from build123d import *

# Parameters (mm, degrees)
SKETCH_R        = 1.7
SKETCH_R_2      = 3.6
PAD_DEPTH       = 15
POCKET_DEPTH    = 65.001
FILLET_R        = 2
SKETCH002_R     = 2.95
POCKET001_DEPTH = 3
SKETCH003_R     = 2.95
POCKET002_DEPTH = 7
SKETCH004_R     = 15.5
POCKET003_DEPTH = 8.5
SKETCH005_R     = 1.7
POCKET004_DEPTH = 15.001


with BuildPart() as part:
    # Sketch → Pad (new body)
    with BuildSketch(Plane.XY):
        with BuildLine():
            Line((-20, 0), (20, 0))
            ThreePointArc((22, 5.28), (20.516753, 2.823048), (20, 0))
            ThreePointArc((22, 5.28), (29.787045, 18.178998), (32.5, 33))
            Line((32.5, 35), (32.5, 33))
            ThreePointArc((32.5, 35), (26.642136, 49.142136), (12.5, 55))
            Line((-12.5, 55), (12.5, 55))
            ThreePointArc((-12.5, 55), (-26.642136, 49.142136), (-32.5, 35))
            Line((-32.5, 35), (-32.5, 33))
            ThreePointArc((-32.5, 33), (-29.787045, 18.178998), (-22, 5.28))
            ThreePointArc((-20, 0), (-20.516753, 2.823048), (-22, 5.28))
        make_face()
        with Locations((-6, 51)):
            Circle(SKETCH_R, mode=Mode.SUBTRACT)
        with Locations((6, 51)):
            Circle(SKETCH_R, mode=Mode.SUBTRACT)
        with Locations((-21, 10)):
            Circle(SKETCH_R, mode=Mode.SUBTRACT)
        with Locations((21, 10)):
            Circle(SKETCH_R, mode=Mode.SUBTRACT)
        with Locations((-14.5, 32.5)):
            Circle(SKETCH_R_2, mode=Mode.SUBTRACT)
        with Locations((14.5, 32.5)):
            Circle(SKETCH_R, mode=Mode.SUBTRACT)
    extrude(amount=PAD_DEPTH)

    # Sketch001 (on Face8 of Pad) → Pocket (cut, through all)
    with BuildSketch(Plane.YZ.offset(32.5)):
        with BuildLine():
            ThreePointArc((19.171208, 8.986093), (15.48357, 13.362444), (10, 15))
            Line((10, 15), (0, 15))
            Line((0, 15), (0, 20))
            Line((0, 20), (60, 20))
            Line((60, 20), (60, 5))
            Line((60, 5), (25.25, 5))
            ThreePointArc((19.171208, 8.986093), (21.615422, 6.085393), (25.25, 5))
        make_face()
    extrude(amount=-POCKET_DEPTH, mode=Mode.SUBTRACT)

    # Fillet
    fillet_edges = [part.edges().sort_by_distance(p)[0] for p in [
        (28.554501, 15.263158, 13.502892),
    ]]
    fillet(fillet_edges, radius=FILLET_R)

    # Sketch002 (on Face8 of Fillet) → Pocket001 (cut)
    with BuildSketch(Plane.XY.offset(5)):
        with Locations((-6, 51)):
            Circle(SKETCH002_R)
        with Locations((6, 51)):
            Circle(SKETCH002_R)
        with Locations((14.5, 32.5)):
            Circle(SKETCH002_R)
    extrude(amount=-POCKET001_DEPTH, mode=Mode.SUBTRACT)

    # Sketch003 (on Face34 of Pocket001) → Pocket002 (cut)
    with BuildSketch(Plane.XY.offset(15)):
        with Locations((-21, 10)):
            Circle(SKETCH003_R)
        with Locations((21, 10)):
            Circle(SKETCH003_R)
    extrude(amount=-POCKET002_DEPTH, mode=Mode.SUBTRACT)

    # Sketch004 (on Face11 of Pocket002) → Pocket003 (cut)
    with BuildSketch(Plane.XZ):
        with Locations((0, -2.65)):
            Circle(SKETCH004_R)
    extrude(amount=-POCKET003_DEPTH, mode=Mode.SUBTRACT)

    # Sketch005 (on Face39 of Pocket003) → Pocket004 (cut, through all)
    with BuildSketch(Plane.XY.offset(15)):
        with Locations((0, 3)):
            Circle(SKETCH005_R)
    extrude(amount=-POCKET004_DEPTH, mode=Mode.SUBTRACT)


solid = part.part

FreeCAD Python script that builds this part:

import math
import FreeCAD as App
import Part
import Sketcher
from FreeCAD import Vector
Q = App.Units.Quantity


def edges_at(feature, points):
    """Names of the edges that pass closest to the given points."""
    edges = feature.Shape.Edges
    near = lambda p: min(range(len(edges)), key=lambda i: edges[i].distToShape(Part.Vertex(*p))[0])
    return sorted({f"Edge{near(p) + 1}" for p in points})

doc = App.newDocument("Part")
body = doc.addObject("PartDesign::Body", "Body")

# Sketch on XY plane
sketch1 = doc.addObject("Sketcher::SketchObject", "Sketch")
body.addObject(sketch1)
sketch1.AttachmentSupport = (doc.XY_Plane, [""])
sketch1.MapMode = "FlatFace"
sketch1.addGeometry([
    Part.LineSegment(Vector(-20, 0, 0), Vector(20, 0, 0)),  # 0
    Part.ArcOfCircle(Part.Circle(Vector(27.969596, 0.000001, 0), Vector(0, 0, 1), 7.969596), math.radians(138.507829), math.radians(180.00001)),  # 1
    Part.ArcOfCircle(Part.Circle(Vector(-9.340403, 33.000001, 0), Vector(0, 0, 1), 41.840403), math.radians(-41.492159), math.radians(-0.000002)),  # 2
    Part.LineSegment(Vector(32.5, 33, 0), Vector(32.5, 35, 0)),  # 3
    Part.ArcOfCircle(Part.Circle(Vector(12.500001, 35.000001, 0), Vector(0, 0, 1), 19.999999), math.radians(-0.000004), math.radians(90.000004)),  # 4
    Part.LineSegment(Vector(12.5, 55, 0), Vector(-12.5, 55, 0)),  # 5
    Part.ArcOfCircle(Part.Circle(Vector(-12.500001, 35.000001, 0), Vector(0, 0, 1), 19.999999), math.radians(89.999996), math.radians(180.000004)),  # 6
    Part.LineSegment(Vector(-32.5, 35, 0), Vector(-32.5, 33, 0)),  # 7
    Part.ArcOfCircle(Part.Circle(Vector(9.340403, 33.000001, 0), Vector(0, 0, 1), 41.840403), math.radians(-179.999998), math.radians(-138.507841)),  # 8
    Part.ArcOfCircle(Part.Circle(Vector(-27.969596, 0.000001, 0), Vector(0, 0, 1), 7.969596), math.radians(-0.00001), math.radians(41.492171)),  # 9
    Part.Circle(Vector(-21, 10, 0), Vector(0, 0, 1), 1.7),  # 10
    Part.Circle(Vector(21, 10, 0), Vector(0, 0, 1), 1.7),  # 11
    Part.Circle(Vector(-14.5, 32.5, 0), Vector(0, 0, 1), 3.6),  # 12
    Part.Circle(Vector(-6, 51, 0), Vector(0, 0, 1), 1.7),  # 13
    Part.Circle(Vector(14.5, 32.5, 0), Vector(0, 0, 1), 1.7),  # 14
    Part.Circle(Vector(6, 51, 0), Vector(0, 0, 1), 1.7),  # 15
], False)
sketch1.addConstraint([
    Sketcher.Constraint("Coincident", 0, 2, 1, 2),
    Sketcher.Constraint("Tangent", 1, 1, 2, 1),
    Sketcher.Constraint("Tangent", 2, 2, 3, 1),
    Sketcher.Constraint("Tangent", 3, 2, 4, 1),
    Sketcher.Constraint("Tangent", 4, 2, 5, 1),
    Sketcher.Constraint("Tangent", 5, 2, 6, 1),
    Sketcher.Constraint("Tangent", 6, 2, 7, 1),
    Sketcher.Constraint("Tangent", 7, 2, 8, 1),
    Sketcher.Constraint("Tangent", 8, 2, 9, 2),
    Sketcher.Constraint("Coincident", 9, 1, 0, 1),
    Sketcher.Constraint("Horizontal", 0),
    Sketcher.Constraint("Vertical", 3),
    Sketcher.Constraint("Horizontal", 5),
    Sketcher.Constraint("Vertical", 7),
    Sketcher.Constraint("Equal", 4, 6),
    Sketcher.Constraint("Equal", 2, 8),
    Sketcher.Constraint("Equal", 1, 9),
    Sketcher.Constraint("Equal", 10, 11),
    Sketcher.Constraint("Equal", 11, 13),
    Sketcher.Constraint("Equal", 13, 14),
    Sketcher.Constraint("Equal", 14, 15),
    Sketcher.Constraint("Symmetric", 1, 3, 9, 3, -1, 1),
    Sketcher.Constraint("Symmetric", 2, 3, 8, 3, -2),
    Sketcher.Constraint("Symmetric", 10, 3, 11, 3, -2),
    Sketcher.Constraint("Symmetric", 12, 3, 14, 3, -2),
    Sketcher.Constraint("Symmetric", 13, 3, 15, 3, -2),
    Sketcher.Constraint("PointOnObject", 0, 2, -1),
    Sketcher.Constraint("Radius", 4, Q("19.999999 mm")),
    Sketcher.Constraint("Diameter", 10, Q("3.4 mm")),
    Sketcher.Constraint("Diameter", 12, Q("7.2 mm")),
    Sketcher.Constraint("DistanceX", 0, 1, 0, 2, Q("40 mm")),
    Sketcher.Constraint("DistanceX", 5, 2, 5, 1, Q("25 mm")),
    Sketcher.Constraint("DistanceY", 3, 1, 3, 2, Q("2 mm")),
    Sketcher.Constraint("DistanceY", -1, 1, 2, 3, Q("33.000001 mm")),
    Sketcher.Constraint("DistanceX", 10, 3, -1, 1, Q("21 mm")),
    Sketcher.Constraint("DistanceY", -1, 1, 10, 3, Q("10 mm")),
    Sketcher.Constraint("DistanceX", 13, 3, -1, 1, Q("6 mm")),
    Sketcher.Constraint("DistanceY", -1, 1, 13, 3, Q("51 mm")),
    Sketcher.Constraint("DistanceX", -1, 1, 1, 1, Q("22 mm")),
    Sketcher.Constraint("DistanceX", 12, 3, 6, 3, Q("1.999999 mm")),
    Sketcher.Constraint("DistanceY", -1, 1, 12, 3, Q("32.5 mm")),
])
pad1 = doc.addObject("PartDesign::Pad", "Pad")
body.addObject(pad1)
pad1.Profile = sketch1
pad1.Length = 15

# Sketch on YZ plane
sketch2 = doc.addObject("Sketcher::SketchObject", "Sketch001")
body.addObject(sketch2)
sketch2.AttachmentSupport = (doc.YZ_Plane, [""])
sketch2.MapMode = "FlatFace"
sketch2.AttachmentOffset = App.Placement(Vector(0, 0, 32.5), App.Rotation())
sketch2.addGeometry([
    Part.ArcOfCircle(Part.Circle(Vector(10.000002, 5.000003, 0), Vector(0, 0, 1), 9.999997), math.radians(23.491255), math.radians(90.000011)),  # 0
    Part.ArcOfCircle(Part.Circle(Vector(25.250002, 11.628128, 0), Vector(0, 0, 1), 6.628128), math.radians(-156.508717), math.radians(-90.000015)),  # 1
    Part.LineSegment(Vector(25.25, 5, 0), Vector(60, 5, 0)),  # 2
    Part.LineSegment(Vector(60, 5, 0), Vector(60, 20, 0)),  # 3
    Part.LineSegment(Vector(60, 20, 0), Vector(0, 20, 0)),  # 4
    Part.LineSegment(Vector(0, 20, 0), Vector(0, 15, 0)),  # 5
    Part.LineSegment(Vector(0, 15, 0), Vector(10, 15, 0)),  # 6
], False)
sketch2.addConstraint([
    Sketcher.Constraint("Tangent", 0, 1, 1, 1),
    Sketcher.Constraint("Tangent", 1, 2, 2, 1),
    Sketcher.Constraint("Coincident", 2, 2, 3, 1),
    Sketcher.Constraint("Coincident", 3, 2, 4, 1),
    Sketcher.Constraint("Coincident", 4, 2, 5, 1),
    Sketcher.Constraint("Coincident", 5, 2, 6, 1),
    Sketcher.Constraint("Tangent", 6, 2, 0, 2),
    Sketcher.Constraint("Horizontal", 2),
    Sketcher.Constraint("Vertical", 3),
    Sketcher.Constraint("Horizontal", 4),
    Sketcher.Constraint("Vertical", 5),
    Sketcher.Constraint("Horizontal", 6),
    Sketcher.Constraint("PointOnObject", 4, 2, -2),
    Sketcher.Constraint("DistanceX", 4, 2, 4, 1, Q("60 mm")),
    Sketcher.Constraint("DistanceX", 6, 1, 6, 2, Q("10 mm")),
    Sketcher.Constraint("DistanceY", 3, 1, 3, 2, Q("15 mm")),
    Sketcher.Constraint("DistanceY", 5, 2, 5, 1, Q("5 mm")),
    Sketcher.Constraint("DistanceY", -1, 1, 1, 2, Q("5 mm")),
    Sketcher.Constraint("DistanceX", 2, 1, 2, 2, Q("34.75 mm")),
    Sketcher.Constraint("Radius", 1, Q("6.628128 mm")),
])
pocket1 = doc.addObject("PartDesign::Pocket", "Pocket")
body.addObject(pocket1)
pocket1.Profile = sketch2
pocket1.Type = "ThroughAll"
doc.recompute()

fillet = doc.addObject("PartDesign::Fillet", "Fillet")
body.addObject(fillet)
fillet.Base = (pocket1, edges_at(pocket1, [(28.555, 15.263, 13.503)]))
fillet.Radius = 2

# Sketch on XY plane
sketch3 = doc.addObject("Sketcher::SketchObject", "Sketch002")
body.addObject(sketch3)
sketch3.AttachmentSupport = (doc.XY_Plane, [""])
sketch3.MapMode = "FlatFace"
sketch3.AttachmentOffset = App.Placement(Vector(0, 0, 5), App.Rotation())
sketch3.addGeometry([
    Part.Circle(Vector(-6, 51, 0), Vector(0, 0, 1), 2.95),
    Part.Circle(Vector(6, 51, 0), Vector(0, 0, 1), 2.95),
    Part.Circle(Vector(14.5, 32.5, 0), Vector(0, 0, 1), 2.95),
], False)
sketch3.addConstraint([
    Sketcher.Constraint("Equal", 0, 1),
    Sketcher.Constraint("Equal", 1, 2),
    Sketcher.Constraint("Symmetric", 0, 3, 1, 3, -2),
    Sketcher.Constraint("Diameter", 0, Q("5.9 mm")),
    Sketcher.Constraint("DistanceX", 0, 3, -1, 1, Q("6 mm")),
    Sketcher.Constraint("DistanceY", -1, 1, 0, 3, Q("51 mm")),
    Sketcher.Constraint("DistanceX", -1, 1, 2, 3, Q("14.5 mm")),
    Sketcher.Constraint("DistanceY", -1, 1, 2, 3, Q("32.5 mm")),
])
pocket2 = doc.addObject("PartDesign::Pocket", "Pocket001")
body.addObject(pocket2)
pocket2.Profile = sketch3
pocket2.Length = 3

# Sketch on XY plane
sketch4 = doc.addObject("Sketcher::SketchObject", "Sketch003")
body.addObject(sketch4)
sketch4.AttachmentSupport = (doc.XY_Plane, [""])
sketch4.MapMode = "FlatFace"
sketch4.AttachmentOffset = App.Placement(Vector(0, 0, 15), App.Rotation())
sketch4.addGeometry([
    Part.Circle(Vector(-21, 10, 0), Vector(0, 0, 1), 2.95),
    Part.Circle(Vector(21, 10, 0), Vector(0, 0, 1), 2.95),
], False)
sketch4.addConstraint([
    Sketcher.Constraint("Equal", 0, 1),
    Sketcher.Constraint("Symmetric", 0, 3, 1, 3, -2),
    Sketcher.Constraint("Diameter", 0, Q("5.9 mm")),
    Sketcher.Constraint("DistanceX", 0, 3, -1, 1, Q("21 mm")),
    Sketcher.Constraint("DistanceY", -1, 1, 0, 3, Q("10 mm")),
])
pocket3 = doc.addObject("PartDesign::Pocket", "Pocket002")
body.addObject(pocket3)
pocket3.Profile = sketch4
pocket3.Length = 7

# Sketch on XZ plane
sketch5 = doc.addObject("Sketcher::SketchObject", "Sketch004")
body.addObject(sketch5)
sketch5.AttachmentSupport = (doc.XZ_Plane, [""])
sketch5.MapMode = "FlatFace"
sketch5.addGeometry(Part.Circle(Vector(0, -2.65, 0), Vector(0, 0, 1), 15.5), False)
sketch5.addConstraint([
    Sketcher.Constraint("PointOnObject", 0, 3, -2),
    Sketcher.Constraint("Diameter", 0, Q("31 mm")),
    Sketcher.Constraint("DistanceY", 0, 3, -1, 1, Q("2.65 mm")),
])
pocket4 = doc.addObject("PartDesign::Pocket", "Pocket003")
body.addObject(pocket4)
pocket4.Profile = sketch5
pocket4.Length = 8.5

# Sketch on XY plane
sketch6 = doc.addObject("Sketcher::SketchObject", "Sketch005")
body.addObject(sketch6)
sketch6.AttachmentSupport = (doc.XY_Plane, [""])
sketch6.MapMode = "FlatFace"
sketch6.AttachmentOffset = App.Placement(Vector(0, 0, 15), App.Rotation())
sketch6.addGeometry(Part.Circle(Vector(0, 3, 0), Vector(0, 0, 1), 1.7), False)
sketch6.addConstraint([
    Sketcher.Constraint("PointOnObject", 0, 3, -2),
    Sketcher.Constraint("Diameter", 0, Q("3.4 mm")),
    Sketcher.Constraint("DistanceY", -1, 1, 0, 3, Q("3 mm")),
])
pocket5 = doc.addObject("PartDesign::Pocket", "Pocket004")
body.addObject(pocket5)
pocket5.Profile = sketch6
pocket5.Type = "ThroughAll"

doc.recompute()
